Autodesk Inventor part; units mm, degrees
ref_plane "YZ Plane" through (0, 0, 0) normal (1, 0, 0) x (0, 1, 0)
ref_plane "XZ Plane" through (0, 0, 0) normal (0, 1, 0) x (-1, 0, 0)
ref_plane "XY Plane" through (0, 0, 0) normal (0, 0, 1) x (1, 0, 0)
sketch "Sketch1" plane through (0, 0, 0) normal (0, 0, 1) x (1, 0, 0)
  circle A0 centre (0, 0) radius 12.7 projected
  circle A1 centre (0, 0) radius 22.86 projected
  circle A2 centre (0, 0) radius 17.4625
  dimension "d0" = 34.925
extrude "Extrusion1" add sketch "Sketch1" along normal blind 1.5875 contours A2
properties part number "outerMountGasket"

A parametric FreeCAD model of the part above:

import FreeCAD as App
import Part
import Sketcher

V = App.Vector
Q = App.Units.Quantity

doc = App.newDocument("Part")
body = doc.addObject("PartDesign::Body", "Body")

# Sketch on XY plane
sketch1 = body.newObject("Sketcher::SketchObject", "Sketch")
sketch1.AttachmentSupport = (doc.getObject("XY_Plane"), [""])
sketch1.MapMode = "FlatFace"
sketch1.addGeometry([
    Part.Circle(V(0, 0, 0), V(0, 0, 1), 17),
    Part.Circle(V(0, 0, 0), V(0, 0, 1), 13),
], False)
sketch1.addConstraint([
    Sketcher.Constraint("Coincident", 0, 3, -1, 1),
    Sketcher.Constraint("Coincident", 1, 3, -1, 1),
    Sketcher.Constraint("Diameter", 0, Q("1.375 in")),
    Sketcher.Constraint("Diameter", 1, Q("1 in")),
])
pad1 = body.newObject("PartDesign::Pad", "Pad")
pad1.Profile = sketch1
pad1.Length = Q("0.0625 in")

doc.recompute()
